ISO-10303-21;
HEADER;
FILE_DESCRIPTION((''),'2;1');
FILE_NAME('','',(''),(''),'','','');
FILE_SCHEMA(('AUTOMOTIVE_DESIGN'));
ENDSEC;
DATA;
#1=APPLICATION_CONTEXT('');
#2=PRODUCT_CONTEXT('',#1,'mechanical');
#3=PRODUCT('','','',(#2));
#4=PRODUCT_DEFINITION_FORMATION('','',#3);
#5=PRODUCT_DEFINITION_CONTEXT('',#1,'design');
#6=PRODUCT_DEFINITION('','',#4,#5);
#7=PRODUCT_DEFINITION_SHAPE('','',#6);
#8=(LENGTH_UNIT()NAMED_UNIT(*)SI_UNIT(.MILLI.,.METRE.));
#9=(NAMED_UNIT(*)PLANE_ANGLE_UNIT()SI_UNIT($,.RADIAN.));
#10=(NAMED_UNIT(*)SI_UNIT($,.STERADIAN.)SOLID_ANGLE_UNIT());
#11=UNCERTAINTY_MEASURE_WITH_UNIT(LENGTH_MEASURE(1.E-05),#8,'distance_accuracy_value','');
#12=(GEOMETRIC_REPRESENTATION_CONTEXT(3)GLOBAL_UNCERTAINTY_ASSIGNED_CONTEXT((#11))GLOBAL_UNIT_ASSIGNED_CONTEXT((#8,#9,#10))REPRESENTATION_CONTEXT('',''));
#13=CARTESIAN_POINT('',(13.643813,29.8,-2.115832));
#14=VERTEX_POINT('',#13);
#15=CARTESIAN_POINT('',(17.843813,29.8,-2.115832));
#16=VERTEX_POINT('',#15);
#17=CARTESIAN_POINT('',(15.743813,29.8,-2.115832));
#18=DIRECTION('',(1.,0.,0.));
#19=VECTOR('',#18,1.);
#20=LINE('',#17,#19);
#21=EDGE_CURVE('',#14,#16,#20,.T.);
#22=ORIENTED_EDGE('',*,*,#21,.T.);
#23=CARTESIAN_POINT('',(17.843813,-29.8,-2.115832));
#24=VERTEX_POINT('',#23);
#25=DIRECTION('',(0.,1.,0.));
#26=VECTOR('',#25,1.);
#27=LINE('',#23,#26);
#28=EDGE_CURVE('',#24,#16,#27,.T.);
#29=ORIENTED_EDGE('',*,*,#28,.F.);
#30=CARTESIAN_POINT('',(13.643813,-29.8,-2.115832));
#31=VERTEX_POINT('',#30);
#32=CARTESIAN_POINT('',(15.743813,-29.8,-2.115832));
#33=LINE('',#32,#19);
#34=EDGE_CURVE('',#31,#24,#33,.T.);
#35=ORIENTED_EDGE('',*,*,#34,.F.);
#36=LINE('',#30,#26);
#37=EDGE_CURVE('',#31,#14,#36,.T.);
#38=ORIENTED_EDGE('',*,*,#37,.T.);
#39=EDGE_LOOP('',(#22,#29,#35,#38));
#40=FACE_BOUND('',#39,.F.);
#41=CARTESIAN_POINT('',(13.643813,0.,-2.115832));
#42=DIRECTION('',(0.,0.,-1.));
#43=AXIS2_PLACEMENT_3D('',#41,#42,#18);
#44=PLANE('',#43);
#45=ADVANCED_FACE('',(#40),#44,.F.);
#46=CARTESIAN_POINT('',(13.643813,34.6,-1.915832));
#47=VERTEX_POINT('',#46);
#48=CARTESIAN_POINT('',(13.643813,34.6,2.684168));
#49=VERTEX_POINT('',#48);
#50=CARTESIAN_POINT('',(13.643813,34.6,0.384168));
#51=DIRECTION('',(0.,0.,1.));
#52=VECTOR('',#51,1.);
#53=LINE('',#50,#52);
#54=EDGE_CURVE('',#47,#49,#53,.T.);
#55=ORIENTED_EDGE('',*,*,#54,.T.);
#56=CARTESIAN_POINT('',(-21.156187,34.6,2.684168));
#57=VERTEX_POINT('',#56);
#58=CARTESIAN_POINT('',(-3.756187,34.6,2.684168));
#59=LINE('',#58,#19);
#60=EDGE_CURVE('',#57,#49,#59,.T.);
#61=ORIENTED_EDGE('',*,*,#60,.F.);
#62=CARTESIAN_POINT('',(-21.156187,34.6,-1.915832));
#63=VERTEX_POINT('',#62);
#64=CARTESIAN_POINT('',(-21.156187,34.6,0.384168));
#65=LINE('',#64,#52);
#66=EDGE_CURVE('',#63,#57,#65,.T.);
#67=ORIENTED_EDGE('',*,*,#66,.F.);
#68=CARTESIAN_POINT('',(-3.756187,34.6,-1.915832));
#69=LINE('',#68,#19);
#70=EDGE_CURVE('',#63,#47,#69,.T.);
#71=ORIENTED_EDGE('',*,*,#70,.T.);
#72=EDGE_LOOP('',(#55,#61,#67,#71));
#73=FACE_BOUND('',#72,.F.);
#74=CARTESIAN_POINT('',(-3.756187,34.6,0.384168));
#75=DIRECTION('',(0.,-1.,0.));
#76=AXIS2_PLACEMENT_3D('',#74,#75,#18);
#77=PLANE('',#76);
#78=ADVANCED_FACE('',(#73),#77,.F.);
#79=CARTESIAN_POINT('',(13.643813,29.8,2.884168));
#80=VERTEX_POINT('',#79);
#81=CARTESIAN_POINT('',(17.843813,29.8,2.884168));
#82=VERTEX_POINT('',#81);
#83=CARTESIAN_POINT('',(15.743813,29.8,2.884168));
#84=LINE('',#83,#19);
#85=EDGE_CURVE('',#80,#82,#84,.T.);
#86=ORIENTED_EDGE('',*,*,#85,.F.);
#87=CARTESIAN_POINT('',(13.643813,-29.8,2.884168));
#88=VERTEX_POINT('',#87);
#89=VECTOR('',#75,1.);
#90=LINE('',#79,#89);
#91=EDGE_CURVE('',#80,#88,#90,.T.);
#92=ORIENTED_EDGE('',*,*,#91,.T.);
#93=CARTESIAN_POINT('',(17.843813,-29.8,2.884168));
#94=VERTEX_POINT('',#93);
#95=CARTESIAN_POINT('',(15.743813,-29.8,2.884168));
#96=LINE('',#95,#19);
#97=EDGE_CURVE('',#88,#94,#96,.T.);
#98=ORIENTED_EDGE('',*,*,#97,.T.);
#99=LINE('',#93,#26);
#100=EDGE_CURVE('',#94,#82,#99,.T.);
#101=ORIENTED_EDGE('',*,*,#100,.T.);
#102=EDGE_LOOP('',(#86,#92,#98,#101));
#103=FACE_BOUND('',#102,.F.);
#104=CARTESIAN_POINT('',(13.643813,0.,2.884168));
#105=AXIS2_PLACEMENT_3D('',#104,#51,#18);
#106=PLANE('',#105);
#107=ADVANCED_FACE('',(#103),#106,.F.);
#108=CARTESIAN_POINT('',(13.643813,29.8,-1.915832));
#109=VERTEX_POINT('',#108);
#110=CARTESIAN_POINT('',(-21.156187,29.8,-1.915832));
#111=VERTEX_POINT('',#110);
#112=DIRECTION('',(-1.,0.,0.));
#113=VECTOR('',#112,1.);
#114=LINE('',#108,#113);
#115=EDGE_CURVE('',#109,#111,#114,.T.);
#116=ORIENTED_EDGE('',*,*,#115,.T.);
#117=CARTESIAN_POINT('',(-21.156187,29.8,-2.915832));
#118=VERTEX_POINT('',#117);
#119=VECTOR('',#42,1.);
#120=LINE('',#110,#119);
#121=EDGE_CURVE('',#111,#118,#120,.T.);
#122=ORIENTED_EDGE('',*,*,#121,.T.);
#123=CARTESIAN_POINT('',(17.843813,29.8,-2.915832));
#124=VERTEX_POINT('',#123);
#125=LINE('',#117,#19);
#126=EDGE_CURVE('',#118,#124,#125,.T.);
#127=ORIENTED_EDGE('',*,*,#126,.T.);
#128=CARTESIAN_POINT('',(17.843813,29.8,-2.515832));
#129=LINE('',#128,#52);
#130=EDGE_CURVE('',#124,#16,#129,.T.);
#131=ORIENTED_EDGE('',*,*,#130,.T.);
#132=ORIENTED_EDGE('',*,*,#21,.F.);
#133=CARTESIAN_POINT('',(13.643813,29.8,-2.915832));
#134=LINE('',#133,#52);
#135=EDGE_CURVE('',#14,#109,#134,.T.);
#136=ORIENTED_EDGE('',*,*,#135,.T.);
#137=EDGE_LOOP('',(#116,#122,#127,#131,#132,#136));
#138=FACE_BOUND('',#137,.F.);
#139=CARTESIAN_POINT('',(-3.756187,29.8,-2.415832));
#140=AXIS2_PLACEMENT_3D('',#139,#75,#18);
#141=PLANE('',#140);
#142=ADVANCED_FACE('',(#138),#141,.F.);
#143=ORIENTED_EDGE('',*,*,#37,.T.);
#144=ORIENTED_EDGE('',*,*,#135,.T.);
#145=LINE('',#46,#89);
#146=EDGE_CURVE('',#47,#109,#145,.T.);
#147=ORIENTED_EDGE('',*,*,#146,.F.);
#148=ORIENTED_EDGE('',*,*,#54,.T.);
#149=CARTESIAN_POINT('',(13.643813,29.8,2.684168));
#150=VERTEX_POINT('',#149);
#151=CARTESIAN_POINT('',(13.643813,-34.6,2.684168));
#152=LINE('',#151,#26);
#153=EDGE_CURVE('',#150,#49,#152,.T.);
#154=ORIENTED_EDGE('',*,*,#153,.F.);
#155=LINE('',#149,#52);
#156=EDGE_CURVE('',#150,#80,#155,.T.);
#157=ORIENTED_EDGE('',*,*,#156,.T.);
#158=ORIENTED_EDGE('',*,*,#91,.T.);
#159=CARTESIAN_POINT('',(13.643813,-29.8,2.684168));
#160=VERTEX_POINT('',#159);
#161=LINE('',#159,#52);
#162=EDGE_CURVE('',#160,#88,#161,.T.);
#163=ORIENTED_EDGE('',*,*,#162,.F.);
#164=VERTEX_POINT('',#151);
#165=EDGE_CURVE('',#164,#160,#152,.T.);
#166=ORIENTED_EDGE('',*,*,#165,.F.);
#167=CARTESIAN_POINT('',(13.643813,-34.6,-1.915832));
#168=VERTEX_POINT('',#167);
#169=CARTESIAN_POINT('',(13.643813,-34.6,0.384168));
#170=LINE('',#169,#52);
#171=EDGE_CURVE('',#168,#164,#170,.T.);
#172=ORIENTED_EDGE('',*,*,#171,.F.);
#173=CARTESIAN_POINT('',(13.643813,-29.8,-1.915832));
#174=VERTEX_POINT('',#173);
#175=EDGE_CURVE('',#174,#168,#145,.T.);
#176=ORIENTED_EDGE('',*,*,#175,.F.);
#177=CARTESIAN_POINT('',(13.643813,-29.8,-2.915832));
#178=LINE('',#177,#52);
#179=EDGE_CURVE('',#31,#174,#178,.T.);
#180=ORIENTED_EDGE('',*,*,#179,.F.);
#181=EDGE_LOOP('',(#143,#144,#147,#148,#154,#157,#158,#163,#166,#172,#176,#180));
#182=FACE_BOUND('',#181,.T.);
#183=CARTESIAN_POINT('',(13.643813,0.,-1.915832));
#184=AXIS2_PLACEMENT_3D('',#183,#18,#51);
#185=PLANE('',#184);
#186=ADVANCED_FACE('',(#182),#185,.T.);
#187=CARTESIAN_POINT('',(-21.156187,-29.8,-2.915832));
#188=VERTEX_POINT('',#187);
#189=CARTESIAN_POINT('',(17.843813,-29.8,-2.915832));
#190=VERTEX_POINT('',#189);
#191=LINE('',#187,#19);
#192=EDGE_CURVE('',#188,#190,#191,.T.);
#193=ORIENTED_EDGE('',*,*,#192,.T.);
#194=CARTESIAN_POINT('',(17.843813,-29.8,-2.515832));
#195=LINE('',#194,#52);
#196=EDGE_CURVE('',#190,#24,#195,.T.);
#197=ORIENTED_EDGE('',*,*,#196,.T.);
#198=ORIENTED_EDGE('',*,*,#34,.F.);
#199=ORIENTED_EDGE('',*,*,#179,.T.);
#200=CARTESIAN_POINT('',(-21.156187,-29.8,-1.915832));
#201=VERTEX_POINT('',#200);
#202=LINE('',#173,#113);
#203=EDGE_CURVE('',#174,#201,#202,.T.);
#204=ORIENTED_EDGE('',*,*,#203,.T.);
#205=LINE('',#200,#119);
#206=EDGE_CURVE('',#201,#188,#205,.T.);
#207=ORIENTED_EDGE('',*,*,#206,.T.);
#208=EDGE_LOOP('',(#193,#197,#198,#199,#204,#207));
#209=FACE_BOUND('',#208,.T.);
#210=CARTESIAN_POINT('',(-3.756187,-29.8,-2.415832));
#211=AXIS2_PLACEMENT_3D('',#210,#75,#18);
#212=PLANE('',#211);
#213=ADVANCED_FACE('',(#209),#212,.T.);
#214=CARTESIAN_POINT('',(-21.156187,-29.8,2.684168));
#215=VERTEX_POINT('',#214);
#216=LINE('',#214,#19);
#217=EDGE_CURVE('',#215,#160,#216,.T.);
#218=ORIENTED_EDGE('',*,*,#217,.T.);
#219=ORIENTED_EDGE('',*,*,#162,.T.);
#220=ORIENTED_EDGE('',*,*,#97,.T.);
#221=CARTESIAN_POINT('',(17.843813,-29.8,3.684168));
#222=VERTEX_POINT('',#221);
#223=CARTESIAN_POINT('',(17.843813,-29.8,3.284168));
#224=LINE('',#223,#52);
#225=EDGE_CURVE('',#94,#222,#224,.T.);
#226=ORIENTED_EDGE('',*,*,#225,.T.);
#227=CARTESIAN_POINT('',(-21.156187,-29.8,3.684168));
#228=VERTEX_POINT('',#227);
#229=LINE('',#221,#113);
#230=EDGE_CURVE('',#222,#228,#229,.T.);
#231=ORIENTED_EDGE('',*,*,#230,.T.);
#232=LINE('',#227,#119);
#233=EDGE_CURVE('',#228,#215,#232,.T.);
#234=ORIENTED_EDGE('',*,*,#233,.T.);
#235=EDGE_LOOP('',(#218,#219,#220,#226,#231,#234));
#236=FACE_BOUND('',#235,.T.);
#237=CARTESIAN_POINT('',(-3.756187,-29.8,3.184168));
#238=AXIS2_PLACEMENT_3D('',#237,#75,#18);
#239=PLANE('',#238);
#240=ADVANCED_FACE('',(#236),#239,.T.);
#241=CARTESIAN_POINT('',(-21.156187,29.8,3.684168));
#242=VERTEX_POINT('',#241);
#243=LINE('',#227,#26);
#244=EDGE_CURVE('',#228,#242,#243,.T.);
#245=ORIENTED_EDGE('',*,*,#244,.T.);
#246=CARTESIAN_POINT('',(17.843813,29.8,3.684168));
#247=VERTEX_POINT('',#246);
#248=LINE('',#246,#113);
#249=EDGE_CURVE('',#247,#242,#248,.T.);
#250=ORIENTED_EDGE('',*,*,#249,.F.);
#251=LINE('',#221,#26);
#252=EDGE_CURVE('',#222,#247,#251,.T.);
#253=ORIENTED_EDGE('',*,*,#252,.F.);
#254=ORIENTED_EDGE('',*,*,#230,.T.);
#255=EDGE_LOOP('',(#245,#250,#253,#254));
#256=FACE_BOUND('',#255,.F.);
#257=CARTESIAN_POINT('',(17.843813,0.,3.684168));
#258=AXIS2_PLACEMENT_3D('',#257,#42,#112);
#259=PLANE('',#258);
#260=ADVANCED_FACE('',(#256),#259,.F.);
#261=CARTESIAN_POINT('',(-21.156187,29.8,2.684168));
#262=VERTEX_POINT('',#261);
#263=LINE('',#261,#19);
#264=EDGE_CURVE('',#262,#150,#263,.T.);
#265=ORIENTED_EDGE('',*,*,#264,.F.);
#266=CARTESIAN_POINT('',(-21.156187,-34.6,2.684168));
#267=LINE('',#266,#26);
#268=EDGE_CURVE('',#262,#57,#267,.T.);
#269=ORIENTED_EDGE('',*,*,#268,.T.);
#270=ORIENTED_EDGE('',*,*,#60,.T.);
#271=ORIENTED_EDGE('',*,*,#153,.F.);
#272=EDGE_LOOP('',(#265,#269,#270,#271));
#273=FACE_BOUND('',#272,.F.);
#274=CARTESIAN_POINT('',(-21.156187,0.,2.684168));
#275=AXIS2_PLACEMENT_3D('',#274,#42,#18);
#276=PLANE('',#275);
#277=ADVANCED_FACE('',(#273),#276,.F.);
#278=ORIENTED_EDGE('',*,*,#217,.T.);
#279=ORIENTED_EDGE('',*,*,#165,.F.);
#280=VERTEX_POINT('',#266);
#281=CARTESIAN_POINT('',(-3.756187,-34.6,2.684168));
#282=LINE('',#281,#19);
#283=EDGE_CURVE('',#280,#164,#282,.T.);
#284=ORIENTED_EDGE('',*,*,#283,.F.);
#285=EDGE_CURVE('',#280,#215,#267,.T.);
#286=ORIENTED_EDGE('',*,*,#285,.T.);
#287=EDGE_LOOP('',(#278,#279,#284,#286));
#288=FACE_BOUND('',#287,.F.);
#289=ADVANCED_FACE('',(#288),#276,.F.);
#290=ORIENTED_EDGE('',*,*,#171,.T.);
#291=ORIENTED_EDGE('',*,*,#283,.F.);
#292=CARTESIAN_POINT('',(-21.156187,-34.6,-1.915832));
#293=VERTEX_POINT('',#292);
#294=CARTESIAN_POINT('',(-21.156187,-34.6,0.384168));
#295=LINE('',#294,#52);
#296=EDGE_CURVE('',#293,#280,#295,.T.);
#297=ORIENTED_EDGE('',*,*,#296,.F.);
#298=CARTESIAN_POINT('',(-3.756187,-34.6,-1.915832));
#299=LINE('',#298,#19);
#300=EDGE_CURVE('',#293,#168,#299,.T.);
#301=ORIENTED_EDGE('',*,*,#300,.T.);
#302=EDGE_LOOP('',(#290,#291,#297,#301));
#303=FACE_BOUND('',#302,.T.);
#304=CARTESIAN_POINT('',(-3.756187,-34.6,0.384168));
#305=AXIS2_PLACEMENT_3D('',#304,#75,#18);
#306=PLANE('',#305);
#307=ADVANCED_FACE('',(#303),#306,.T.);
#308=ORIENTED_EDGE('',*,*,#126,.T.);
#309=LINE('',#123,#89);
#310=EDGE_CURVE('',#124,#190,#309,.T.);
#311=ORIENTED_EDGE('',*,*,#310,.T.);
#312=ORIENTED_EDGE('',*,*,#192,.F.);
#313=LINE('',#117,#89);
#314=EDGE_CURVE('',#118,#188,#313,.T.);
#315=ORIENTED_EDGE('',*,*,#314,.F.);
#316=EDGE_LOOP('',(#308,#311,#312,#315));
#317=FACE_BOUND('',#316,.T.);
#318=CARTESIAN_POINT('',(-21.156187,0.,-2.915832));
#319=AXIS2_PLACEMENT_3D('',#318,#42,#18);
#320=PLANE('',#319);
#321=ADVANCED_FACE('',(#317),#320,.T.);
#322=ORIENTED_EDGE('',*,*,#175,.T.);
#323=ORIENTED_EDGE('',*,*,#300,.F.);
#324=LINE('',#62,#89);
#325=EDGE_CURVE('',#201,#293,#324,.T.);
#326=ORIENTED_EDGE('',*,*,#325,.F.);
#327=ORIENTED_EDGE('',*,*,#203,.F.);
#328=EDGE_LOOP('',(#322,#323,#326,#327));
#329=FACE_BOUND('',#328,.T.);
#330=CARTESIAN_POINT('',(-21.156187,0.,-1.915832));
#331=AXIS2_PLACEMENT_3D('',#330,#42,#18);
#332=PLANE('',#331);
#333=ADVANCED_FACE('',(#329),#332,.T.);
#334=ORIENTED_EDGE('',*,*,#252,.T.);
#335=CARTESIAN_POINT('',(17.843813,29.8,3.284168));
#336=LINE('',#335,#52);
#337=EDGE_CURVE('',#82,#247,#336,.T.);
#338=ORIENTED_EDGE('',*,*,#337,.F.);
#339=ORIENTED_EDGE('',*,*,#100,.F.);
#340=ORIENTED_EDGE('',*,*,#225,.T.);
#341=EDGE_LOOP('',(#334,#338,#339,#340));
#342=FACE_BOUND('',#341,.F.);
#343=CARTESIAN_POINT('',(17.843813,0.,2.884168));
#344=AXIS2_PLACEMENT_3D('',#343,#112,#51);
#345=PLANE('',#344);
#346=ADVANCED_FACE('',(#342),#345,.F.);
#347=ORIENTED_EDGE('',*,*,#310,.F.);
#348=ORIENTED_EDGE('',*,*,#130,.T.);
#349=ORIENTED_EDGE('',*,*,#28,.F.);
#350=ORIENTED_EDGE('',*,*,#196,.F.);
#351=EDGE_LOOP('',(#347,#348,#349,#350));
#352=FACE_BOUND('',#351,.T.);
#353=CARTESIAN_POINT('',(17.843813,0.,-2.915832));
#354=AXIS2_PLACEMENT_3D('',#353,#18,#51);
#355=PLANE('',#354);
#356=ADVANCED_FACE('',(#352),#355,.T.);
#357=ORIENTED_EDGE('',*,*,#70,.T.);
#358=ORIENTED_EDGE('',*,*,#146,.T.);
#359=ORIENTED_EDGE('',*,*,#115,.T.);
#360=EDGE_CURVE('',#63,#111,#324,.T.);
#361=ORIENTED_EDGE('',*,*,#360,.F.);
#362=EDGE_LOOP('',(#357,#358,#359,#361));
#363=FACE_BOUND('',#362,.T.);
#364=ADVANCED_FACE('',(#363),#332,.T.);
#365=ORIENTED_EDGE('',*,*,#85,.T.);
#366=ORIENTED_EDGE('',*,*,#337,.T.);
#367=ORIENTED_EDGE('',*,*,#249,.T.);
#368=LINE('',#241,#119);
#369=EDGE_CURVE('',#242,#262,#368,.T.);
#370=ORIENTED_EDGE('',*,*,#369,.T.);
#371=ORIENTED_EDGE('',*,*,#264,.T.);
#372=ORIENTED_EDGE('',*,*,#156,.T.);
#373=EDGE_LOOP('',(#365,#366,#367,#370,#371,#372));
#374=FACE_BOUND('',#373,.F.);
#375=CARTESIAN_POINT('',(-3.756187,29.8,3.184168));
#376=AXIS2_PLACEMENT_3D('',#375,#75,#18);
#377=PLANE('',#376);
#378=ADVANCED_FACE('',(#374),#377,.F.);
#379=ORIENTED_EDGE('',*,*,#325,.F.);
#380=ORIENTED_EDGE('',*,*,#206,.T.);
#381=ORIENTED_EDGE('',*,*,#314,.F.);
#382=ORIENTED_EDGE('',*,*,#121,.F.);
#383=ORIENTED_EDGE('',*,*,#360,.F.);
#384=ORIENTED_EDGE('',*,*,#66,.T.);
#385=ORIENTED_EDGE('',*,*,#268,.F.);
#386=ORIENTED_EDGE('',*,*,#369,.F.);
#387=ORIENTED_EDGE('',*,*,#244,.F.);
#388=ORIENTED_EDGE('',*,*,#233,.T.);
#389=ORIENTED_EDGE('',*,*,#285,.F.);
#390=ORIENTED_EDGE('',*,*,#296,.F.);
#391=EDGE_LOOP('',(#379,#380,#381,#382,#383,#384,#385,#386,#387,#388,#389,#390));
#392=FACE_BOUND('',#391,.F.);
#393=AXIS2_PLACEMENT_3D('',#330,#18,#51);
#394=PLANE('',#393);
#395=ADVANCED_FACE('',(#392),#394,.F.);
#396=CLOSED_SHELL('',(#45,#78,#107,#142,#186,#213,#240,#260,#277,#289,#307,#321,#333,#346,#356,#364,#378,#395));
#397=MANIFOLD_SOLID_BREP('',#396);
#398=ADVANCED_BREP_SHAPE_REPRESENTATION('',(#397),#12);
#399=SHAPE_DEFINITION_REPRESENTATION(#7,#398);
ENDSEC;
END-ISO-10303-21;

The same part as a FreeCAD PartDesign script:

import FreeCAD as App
import Part
import Sketcher
from FreeCAD import Vector
Q = App.Units.Quantity


def add_polygon(sketch, points):
    """Adds a closed chain of lines whose ends are joined by coincident constraints."""
    first, n = sketch.GeometryCount, len(points)
    for a, b in zip(points, points[1:] + points[:1]):
        sketch.addGeometry(Part.LineSegment(App.Vector(*a, 0), App.Vector(*b, 0)), False)
    for i in range(n):
        sketch.addConstraint(Sketcher.Constraint("Coincident", first + i, 2, first + (i + 1) % n, 1))

doc = App.newDocument("Part")
body = doc.addObject("PartDesign::Body", "Body")

sketch1 = doc.addObject("Sketcher::SketchObject", "Sketch")
body.addObject(sketch1)
sketch1.AttachmentSupport = (doc.XZ_Plane, [""])
sketch1.MapMode = "FlatFace"
add_polygon(sketch1, [(-21.156187, 2.684168), (-21.156187, -1.915832), (13.643813, -1.915832), (13.643813, 2.684168)])
sketch1.addConstraint(Sketcher.Constraint("Vertical", 0))
sketch1.addConstraint(Sketcher.Constraint("Horizontal", 1))
sketch1.addConstraint(Sketcher.Constraint("Vertical", 2))
sketch1.addConstraint(Sketcher.Constraint("Horizontal", 3))
sketch1.addConstraint(Sketcher.Constraint("DistanceX", 1, 1, 1, 2, Q("34.8 mm")))
sketch1.addConstraint(Sketcher.Constraint("DistanceY", 0, 2, 0, 1, Q("4.6 mm")))
sketch1.addConstraint(Sketcher.Constraint("DistanceY", -1, 1, 2, 2, Q("2.684168 mm")))
sketch1.addConstraint(Sketcher.Constraint("DistanceX", 0, 2, -1, 1, Q("21.156187 mm")))
pad1 = doc.addObject("PartDesign::Pad", "Pad")
body.addObject(pad1)
pad1.Profile = sketch1
pad1.Length = 69.2
pad1.Midplane = True

sketch2 = doc.addObject("Sketcher::SketchObject", "Sketch001")
body.addObject(sketch2)
sketch2.AttachmentSupport = (doc.XZ_Plane, [""])
sketch2.MapMode = "FlatFace"
add_polygon(sketch2, [(-21.156187, 3.684168), (-21.156187, 2.684168), (13.643813, 2.684168), (13.643813, 2.884168), (17.843813, 2.884168), (17.843813, 3.684168)])
add_polygon(sketch2, [(13.643813, -1.915832), (-21.156187, -1.915832), (-21.156187, -2.915832), (17.843813, -2.915832), (17.843813, -2.115832), (13.643813, -2.115832)])
sketch2.addConstraint(Sketcher.Constraint("Vertical", 0))
sketch2.addConstraint(Sketcher.Constraint("Horizontal", 1))
sketch2.addConstraint(Sketcher.Constraint("Vertical", 2))
sketch2.addConstraint(Sketcher.Constraint("Horizontal", 3))
sketch2.addConstraint(Sketcher.Constraint("Vertical", 4))
sketch2.addConstraint(Sketcher.Constraint("Horizontal", 5))
sketch2.addConstraint(Sketcher.Constraint("Horizontal", 6))
sketch2.addConstraint(Sketcher.Constraint("Vertical", 7))
sketch2.addConstraint(Sketcher.Constraint("Horizontal", 8))
sketch2.addConstraint(Sketcher.Constraint("Vertical", 9))
sketch2.addConstraint(Sketcher.Constraint("Horizontal", 10))
sketch2.addConstraint(Sketcher.Constraint("Vertical", 11))
sketch2.addConstraint(Sketcher.Constraint("Vertical", 5, 2, 6, 2))
sketch2.addConstraint(Sketcher.Constraint("Vertical", 4, 2, 8, 2))
sketch2.addConstraint(Sketcher.Constraint("Vertical", 2, 2, 10, 2))
sketch2.addConstraint(Sketcher.Constraint("Equal", 0, 7))
sketch2.addConstraint(Sketcher.Constraint("Equal", 4, 9))
sketch2.addConstraint(Sketcher.Constraint("DistanceX", 5, 2, 5, 1, Q("39 mm")))
sketch2.addConstraint(Sketcher.Constraint("DistanceY", 0, 2, 0, 1, Q("1 mm")))
sketch2.addConstraint(Sketcher.Constraint("DistanceX", 1, 1, 1, 2, Q("34.8 mm")))
sketch2.addConstraint(Sketcher.Constraint("DistanceY", 2, 1, 2, 2, Q("0.2 mm")))
sketch2.addConstraint(Sketcher.Constraint("DistanceY", 9, 2, 3, 2, Q("5 mm")))
sketch2.addConstraint(Sketcher.Constraint("DistanceY", -1, 1, 0, 2, Q("2.684168 mm")))
sketch2.addConstraint(Sketcher.Constraint("DistanceX", 0, 2, -1, 1, Q("21.156187 mm")))
pad2 = doc.addObject("PartDesign::Pad", "Pad001")
body.addObject(pad2)
pad2.Profile = sketch2
pad2.Length = 59.6
pad2.Midplane = True

doc.recompute()
